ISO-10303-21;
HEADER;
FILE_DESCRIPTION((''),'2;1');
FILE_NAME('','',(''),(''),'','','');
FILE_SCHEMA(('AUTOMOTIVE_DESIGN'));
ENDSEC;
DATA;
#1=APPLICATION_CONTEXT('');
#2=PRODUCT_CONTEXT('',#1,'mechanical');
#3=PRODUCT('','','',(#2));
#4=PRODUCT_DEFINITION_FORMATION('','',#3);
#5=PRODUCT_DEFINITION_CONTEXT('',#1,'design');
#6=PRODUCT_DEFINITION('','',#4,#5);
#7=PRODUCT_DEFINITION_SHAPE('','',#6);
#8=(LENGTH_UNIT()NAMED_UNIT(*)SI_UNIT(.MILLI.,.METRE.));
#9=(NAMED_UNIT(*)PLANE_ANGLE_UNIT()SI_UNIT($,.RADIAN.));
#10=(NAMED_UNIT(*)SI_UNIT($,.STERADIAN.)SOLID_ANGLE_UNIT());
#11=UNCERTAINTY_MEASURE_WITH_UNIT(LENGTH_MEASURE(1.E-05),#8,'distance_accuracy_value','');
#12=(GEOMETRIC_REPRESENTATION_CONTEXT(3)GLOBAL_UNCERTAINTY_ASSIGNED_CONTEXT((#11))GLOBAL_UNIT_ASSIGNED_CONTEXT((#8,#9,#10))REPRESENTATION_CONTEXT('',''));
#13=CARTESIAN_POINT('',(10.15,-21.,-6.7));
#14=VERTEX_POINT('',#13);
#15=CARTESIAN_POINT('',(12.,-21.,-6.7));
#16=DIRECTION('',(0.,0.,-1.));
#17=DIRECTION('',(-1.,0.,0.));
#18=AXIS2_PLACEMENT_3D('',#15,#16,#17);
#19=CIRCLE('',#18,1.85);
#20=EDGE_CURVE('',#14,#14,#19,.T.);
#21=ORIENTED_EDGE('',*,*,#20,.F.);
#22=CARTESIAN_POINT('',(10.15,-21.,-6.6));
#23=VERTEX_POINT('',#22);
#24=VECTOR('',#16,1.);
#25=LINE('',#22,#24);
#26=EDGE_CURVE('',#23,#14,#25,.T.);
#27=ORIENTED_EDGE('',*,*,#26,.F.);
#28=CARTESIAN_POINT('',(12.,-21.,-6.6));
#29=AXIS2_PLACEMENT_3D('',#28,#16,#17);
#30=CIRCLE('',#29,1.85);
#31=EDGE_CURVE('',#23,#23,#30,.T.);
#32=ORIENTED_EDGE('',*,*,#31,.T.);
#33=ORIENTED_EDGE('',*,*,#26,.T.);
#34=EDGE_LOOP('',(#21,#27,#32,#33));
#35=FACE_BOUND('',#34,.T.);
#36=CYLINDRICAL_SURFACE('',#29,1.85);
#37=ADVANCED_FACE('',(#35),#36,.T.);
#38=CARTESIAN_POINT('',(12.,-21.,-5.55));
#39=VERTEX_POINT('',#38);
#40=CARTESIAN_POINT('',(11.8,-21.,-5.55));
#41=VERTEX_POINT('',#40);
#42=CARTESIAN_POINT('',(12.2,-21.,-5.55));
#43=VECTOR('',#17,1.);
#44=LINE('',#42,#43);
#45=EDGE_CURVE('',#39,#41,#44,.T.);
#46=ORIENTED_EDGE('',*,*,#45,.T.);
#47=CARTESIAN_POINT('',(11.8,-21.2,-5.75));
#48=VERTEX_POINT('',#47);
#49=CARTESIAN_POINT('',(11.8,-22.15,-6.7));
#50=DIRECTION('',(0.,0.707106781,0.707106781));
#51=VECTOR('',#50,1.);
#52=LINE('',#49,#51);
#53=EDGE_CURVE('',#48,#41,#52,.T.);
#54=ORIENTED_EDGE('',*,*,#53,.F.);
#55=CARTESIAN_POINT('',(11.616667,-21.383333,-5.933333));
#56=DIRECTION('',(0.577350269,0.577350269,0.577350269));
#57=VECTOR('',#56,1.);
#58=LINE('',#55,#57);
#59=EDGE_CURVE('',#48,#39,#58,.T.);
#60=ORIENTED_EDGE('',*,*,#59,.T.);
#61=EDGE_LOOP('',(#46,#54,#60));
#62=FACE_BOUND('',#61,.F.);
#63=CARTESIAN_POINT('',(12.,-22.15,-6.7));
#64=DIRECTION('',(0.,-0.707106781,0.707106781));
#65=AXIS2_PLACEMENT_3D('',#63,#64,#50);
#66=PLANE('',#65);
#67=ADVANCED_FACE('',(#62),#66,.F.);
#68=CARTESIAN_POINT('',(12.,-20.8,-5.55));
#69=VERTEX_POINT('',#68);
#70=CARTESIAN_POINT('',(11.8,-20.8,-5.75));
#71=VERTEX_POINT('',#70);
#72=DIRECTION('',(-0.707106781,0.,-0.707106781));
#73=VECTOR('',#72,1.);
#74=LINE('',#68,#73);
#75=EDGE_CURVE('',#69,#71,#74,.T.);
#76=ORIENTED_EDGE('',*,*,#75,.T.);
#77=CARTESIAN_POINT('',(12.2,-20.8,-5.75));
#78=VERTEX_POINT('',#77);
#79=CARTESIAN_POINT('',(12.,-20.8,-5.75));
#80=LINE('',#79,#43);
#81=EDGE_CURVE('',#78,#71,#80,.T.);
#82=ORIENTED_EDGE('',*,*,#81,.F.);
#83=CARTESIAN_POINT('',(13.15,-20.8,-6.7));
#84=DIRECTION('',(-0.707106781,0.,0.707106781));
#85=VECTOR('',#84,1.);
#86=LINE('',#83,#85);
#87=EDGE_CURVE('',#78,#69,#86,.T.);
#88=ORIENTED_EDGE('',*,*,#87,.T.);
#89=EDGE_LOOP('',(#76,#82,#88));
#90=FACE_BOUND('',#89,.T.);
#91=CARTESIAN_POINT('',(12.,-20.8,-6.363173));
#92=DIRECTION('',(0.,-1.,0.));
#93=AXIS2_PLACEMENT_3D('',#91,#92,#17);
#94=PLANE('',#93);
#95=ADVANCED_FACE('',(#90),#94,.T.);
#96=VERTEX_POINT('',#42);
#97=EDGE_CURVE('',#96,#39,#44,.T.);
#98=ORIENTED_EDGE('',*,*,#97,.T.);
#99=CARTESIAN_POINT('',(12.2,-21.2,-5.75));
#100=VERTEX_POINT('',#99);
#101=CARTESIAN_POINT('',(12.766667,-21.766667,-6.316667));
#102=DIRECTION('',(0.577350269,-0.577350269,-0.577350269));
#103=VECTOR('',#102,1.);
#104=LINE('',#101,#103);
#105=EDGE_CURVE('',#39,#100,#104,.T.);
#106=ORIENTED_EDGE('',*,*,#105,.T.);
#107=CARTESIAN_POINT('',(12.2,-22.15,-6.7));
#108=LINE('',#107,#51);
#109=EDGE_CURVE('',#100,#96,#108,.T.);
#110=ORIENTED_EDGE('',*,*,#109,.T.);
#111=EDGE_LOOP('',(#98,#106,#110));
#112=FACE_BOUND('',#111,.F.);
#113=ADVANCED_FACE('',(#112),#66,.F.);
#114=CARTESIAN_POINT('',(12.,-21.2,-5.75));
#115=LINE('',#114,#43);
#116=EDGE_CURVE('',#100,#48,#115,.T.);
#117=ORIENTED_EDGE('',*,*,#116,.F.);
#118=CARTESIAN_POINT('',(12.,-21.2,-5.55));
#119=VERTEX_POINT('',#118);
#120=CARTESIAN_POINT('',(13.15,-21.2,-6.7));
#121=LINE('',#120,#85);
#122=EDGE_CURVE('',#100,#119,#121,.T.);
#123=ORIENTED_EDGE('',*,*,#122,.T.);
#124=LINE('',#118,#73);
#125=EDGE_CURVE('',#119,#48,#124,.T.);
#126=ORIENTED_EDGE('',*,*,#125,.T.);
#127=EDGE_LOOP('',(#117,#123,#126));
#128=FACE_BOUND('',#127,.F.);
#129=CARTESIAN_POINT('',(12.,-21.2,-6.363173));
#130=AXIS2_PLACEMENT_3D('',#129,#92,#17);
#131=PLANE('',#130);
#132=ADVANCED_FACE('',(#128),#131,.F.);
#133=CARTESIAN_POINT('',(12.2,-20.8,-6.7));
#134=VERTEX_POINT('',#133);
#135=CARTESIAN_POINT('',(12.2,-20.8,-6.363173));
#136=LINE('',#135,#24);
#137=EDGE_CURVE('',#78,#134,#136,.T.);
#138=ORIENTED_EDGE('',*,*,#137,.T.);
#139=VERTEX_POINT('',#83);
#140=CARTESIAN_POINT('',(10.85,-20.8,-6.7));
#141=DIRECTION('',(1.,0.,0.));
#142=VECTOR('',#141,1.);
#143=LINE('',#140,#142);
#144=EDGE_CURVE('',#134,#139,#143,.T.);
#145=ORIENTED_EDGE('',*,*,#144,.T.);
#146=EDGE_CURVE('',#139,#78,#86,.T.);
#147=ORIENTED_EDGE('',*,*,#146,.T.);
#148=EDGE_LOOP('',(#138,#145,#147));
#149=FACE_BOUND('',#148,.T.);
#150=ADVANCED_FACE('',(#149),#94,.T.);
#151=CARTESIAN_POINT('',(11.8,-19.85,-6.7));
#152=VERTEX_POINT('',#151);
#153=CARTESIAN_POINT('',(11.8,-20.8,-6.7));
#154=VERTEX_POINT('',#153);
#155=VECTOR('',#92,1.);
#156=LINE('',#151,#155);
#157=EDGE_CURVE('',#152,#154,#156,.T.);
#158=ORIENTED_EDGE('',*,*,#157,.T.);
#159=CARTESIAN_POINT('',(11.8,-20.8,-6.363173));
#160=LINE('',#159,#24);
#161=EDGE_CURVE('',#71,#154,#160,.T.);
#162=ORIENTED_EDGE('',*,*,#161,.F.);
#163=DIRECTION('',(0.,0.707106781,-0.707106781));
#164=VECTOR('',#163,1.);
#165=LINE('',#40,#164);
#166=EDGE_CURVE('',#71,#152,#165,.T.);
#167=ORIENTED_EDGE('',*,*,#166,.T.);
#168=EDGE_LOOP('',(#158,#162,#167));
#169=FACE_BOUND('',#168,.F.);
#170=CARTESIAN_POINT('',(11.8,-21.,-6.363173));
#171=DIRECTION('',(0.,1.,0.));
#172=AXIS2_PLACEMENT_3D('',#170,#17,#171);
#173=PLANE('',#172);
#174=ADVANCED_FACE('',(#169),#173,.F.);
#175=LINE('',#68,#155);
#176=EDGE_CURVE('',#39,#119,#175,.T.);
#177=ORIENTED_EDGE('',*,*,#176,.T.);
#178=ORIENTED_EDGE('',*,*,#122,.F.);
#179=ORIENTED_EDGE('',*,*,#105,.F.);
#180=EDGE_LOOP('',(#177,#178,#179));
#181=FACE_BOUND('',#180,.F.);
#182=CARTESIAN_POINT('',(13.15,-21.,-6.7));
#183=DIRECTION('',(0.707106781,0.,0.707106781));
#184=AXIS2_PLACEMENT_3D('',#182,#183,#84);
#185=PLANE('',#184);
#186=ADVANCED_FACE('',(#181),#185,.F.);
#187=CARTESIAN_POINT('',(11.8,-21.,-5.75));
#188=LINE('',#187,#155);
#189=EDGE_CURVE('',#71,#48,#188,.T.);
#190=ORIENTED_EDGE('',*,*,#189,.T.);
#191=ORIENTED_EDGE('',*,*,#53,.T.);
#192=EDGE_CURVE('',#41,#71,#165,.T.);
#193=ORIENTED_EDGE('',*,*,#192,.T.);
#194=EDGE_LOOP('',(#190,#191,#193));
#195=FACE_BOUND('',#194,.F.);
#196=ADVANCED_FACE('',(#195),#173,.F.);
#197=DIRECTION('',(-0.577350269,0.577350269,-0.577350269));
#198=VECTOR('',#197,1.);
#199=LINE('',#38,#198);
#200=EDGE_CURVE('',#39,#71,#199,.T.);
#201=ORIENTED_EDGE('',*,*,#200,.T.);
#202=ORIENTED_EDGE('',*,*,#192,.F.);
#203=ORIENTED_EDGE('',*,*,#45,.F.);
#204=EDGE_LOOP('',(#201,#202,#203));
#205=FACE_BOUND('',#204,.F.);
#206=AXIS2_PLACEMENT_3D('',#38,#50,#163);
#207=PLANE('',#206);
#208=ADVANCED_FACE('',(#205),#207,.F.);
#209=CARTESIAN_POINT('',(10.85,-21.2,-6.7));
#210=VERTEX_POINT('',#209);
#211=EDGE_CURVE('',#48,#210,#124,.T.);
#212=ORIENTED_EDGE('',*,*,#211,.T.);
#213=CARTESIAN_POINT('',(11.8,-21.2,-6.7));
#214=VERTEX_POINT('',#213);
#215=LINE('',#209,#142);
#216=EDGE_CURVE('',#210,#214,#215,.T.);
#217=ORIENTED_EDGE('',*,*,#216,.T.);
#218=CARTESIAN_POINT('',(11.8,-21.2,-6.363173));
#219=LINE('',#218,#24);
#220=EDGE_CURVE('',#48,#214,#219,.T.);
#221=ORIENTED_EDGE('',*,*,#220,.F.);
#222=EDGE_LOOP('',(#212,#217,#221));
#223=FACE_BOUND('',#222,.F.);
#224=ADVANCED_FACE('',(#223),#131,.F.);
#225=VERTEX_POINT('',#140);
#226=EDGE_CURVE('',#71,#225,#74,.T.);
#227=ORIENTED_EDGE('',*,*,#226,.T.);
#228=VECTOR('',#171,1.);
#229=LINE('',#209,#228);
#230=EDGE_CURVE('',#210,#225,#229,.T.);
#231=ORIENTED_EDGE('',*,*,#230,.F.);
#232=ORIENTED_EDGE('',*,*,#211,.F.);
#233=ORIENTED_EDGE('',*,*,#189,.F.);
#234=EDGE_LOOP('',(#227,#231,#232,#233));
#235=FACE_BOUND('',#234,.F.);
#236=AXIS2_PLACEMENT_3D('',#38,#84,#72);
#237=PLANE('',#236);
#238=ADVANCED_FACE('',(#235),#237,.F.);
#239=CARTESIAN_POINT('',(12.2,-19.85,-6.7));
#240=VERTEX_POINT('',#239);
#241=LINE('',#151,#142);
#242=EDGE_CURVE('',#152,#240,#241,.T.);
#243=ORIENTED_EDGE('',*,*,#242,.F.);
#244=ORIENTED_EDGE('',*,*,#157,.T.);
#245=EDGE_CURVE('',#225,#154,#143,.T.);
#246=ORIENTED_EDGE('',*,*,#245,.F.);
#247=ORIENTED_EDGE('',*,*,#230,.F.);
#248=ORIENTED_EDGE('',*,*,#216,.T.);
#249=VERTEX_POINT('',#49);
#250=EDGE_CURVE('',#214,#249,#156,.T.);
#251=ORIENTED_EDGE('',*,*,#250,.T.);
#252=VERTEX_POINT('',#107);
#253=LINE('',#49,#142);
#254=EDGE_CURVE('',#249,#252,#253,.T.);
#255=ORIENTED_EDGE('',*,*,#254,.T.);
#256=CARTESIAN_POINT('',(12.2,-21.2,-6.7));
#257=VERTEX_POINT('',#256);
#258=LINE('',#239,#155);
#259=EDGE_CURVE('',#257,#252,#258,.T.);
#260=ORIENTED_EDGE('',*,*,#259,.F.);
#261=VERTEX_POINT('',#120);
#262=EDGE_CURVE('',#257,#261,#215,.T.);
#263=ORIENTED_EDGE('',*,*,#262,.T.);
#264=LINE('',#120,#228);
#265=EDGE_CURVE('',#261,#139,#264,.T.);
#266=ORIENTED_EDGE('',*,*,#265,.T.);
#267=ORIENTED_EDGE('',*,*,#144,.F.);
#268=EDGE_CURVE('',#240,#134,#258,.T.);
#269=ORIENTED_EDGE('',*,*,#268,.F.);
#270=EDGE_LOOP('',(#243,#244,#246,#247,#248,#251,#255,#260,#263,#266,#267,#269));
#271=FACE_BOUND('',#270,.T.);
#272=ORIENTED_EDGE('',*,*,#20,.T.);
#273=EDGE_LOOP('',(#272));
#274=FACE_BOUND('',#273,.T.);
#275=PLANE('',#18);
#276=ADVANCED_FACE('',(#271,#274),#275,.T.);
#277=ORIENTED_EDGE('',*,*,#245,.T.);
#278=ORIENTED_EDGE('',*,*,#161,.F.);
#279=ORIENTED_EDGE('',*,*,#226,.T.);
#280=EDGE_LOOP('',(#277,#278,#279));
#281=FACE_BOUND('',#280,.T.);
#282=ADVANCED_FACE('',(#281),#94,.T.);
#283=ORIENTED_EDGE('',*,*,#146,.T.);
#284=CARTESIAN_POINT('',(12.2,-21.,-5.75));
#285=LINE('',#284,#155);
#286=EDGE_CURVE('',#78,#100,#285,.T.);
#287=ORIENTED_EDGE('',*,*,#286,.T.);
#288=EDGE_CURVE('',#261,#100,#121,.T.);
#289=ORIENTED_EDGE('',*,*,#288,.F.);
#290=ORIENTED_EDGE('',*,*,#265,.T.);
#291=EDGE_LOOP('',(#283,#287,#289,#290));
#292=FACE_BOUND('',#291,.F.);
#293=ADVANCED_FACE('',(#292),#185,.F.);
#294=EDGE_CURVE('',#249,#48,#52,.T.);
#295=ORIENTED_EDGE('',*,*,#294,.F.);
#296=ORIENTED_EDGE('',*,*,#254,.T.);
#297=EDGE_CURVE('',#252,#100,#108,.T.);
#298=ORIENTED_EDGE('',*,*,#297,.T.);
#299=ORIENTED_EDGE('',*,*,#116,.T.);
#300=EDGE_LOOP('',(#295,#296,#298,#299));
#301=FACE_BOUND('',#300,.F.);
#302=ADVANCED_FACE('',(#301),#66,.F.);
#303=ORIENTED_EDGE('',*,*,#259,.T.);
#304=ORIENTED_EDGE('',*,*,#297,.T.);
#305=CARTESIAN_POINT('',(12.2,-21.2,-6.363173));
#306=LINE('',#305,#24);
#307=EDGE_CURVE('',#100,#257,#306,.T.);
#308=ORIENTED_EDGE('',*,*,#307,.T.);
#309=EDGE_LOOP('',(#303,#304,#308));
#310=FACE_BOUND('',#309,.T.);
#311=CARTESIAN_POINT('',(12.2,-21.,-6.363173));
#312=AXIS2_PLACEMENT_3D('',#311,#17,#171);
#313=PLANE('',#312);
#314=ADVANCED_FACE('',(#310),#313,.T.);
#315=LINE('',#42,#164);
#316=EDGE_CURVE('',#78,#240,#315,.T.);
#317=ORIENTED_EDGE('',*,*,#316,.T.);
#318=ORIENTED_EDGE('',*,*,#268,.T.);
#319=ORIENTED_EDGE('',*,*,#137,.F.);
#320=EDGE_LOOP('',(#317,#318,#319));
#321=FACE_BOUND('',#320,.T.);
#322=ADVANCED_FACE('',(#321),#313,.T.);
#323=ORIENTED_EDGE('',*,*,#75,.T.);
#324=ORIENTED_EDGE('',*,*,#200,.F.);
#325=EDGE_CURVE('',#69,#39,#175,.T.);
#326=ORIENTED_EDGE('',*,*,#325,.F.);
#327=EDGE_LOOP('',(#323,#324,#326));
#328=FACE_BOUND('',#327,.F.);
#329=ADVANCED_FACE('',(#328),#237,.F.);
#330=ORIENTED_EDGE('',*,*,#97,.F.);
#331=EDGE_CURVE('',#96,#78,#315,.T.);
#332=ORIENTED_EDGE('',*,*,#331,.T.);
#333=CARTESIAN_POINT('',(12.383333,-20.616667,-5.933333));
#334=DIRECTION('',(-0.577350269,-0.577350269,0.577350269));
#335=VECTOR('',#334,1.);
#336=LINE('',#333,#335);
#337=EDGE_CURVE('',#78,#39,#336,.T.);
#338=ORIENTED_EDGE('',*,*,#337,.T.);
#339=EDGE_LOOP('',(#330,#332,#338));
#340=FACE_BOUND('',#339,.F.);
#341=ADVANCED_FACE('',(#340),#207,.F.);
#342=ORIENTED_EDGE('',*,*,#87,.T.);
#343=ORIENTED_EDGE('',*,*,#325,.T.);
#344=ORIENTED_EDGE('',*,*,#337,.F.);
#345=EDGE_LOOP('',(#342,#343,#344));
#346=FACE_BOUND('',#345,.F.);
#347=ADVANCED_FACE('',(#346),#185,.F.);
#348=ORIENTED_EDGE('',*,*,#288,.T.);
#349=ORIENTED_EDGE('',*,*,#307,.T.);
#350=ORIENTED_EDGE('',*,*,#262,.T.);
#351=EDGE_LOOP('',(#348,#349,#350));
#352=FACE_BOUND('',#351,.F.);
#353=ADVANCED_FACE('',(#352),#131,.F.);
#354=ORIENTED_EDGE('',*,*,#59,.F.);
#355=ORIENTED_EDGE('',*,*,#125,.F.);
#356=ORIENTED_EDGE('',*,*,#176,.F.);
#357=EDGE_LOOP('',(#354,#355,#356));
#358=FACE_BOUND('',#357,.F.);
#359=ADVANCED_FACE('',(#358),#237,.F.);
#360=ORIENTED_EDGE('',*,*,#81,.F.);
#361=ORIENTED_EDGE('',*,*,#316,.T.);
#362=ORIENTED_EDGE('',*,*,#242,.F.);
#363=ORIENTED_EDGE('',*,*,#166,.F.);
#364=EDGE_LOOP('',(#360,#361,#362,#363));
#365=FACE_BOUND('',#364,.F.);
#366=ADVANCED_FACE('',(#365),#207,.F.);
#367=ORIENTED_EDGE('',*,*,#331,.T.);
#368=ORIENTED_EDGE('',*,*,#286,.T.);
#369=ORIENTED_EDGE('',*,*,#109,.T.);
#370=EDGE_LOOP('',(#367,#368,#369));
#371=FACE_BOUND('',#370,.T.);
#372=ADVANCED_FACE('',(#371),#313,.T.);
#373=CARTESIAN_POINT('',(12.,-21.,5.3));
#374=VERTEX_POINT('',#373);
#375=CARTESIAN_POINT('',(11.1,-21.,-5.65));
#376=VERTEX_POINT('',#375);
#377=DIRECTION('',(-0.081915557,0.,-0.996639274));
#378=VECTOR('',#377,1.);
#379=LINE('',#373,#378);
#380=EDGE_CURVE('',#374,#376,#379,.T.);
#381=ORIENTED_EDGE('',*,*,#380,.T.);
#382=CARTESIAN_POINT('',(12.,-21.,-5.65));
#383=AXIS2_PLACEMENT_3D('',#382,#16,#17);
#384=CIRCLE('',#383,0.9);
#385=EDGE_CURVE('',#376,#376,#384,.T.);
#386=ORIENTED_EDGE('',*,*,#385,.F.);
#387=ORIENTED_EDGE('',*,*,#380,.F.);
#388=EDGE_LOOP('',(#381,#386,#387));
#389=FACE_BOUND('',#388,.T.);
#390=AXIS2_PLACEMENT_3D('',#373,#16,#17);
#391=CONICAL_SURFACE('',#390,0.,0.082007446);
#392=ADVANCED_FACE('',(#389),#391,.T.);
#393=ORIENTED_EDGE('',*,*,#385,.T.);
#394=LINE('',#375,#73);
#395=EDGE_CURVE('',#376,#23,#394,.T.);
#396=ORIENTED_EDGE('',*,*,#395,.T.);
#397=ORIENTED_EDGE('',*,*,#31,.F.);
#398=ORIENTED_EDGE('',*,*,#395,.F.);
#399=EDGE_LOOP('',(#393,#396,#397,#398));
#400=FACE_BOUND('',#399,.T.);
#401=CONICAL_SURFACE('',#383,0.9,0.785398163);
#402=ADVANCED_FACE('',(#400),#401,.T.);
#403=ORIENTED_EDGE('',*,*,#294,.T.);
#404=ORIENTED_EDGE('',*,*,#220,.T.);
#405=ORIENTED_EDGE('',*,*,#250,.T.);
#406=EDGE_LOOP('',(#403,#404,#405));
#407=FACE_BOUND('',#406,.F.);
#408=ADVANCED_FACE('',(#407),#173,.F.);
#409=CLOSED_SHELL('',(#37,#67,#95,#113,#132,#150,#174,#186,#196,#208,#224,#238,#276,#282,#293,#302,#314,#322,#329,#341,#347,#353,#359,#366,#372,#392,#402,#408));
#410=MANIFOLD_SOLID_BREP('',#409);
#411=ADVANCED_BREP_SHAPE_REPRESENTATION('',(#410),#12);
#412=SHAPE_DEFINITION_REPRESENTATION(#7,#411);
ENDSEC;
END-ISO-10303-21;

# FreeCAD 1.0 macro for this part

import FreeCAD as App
import Part
import Sketcher
from FreeCAD import Vector
Q = App.Units.Quantity

doc = App.newDocument("Part")
body = doc.addObject("PartDesign::Body", "Body")

sketch1 = body.newObject("Sketcher::SketchObject", "Sketch")
sketch1.AttachmentSupport = (doc.getObject("XZ_Plane"), [""])
sketch1.MapMode = "FlatFace"
sketch1.addGeometry([
    Part.LineSegment(Vector(0, 0, 0), Vector(0, -12, 0)),
    Part.LineSegment(Vector(0, -12, 0), Vector(0.9, -1.05, 0)),
    Part.LineSegment(Vector(0.9, -1.05, 0), Vector(1.85, -0.1, 0)),
    Part.LineSegment(Vector(1.85, -0.1, 0), Vector(1.85, 0, 0)),
    Part.LineSegment(Vector(1.85, 0, 0), Vector(0, 0, 0)),
], False)
sketch1.addConstraint([
    Sketcher.Constraint("Coincident", 0, 2, 1, 1),
    Sketcher.Constraint("Coincident", 1, 2, 2, 1),
    Sketcher.Constraint("Coincident", 2, 2, 3, 1),
    Sketcher.Constraint("Coincident", 3, 2, 4, 1),
    Sketcher.Constraint("Coincident", 4, 2, 0, 1),
    Sketcher.Constraint("Vertical", 0),
    Sketcher.Constraint("Vertical", 3),
    Sketcher.Constraint("Horizontal", 4),
    Sketcher.Constraint("Coincident", 4, 2, -1, 1),
    Sketcher.Constraint("DistanceY", 0, 2, 0, 1, Q("12 mm")),
    Sketcher.Constraint("Angle", 2, Q("45 deg")),
    Sketcher.Constraint("DistanceY", 3, 1, 3, 2, Q("0.1 mm")),
    Sketcher.Constraint("DistanceX", 4, 2, 4, 1, Q("1.85 mm")),
    Sketcher.Constraint("DistanceX", -1, 1, 1, 2, Q("0.9 mm")),
])
revolution = body.newObject("PartDesign::Revolution", "Revolution")
revolution.Profile = sketch1
revolution.ReferenceAxis = (sketch1, ["V_Axis"])
revolution.Angle = 360

sketch2 = body.newObject("Sketcher::SketchObject", "Sketch001")
sketch2.AttachmentSupport = (doc.getObject("XZ_Plane"), [""])
sketch2.MapMode = "FlatFace"
sketch2.addGeometry([
    Part.LineSegment(Vector(-1.1, 0, 0), Vector(0, -1.1, 0)),
    Part.LineSegment(Vector(0, -1.1, 0), Vector(1.1, 0, 0)),
    Part.LineSegment(Vector(1.1, 0, 0), Vector(-1.1, 0, 0)),
], False)
sketch2.addConstraint([
    Sketcher.Constraint("Coincident", 0, 2, 1, 1),
    Sketcher.Constraint("Coincident", 1, 2, 2, 1),
    Sketcher.Constraint("Coincident", 2, 2, 0, 1),
    Sketcher.Constraint("Horizontal", 2),
    Sketcher.Constraint("Symmetric", 1, 2, 2, 2, -1, 1),
    Sketcher.Constraint("PointOnObject", 0, 2, -2),
    Sketcher.Constraint("Perpendicular", 0, 1),
    Sketcher.Constraint("DistanceX", 2, 2, 2, 1, Q("2.3 mm")),
])
pocket1 = body.newObject("PartDesign::Pocket", "Pocket")
pocket1.Profile = sketch2
pocket1.Length = 0.4
pocket1.Midplane = True
doc.recompute()

polarpattern = body.newObject("PartDesign::PolarPattern", "PolarPattern")
polarpattern.Originals = [pocket1]
polarpattern.Axis = (doc.getObject("Z_Axis"), [""])
polarpattern.Angle = 90
polarpattern.Occurrences = 2
body.Tip = polarpattern
body2 = doc.addObject("PartDesign::Body", "Body001")
doc.recompute()

body.Placement = App.Placement(Vector(12, -21, -6.7), App.Rotation(Vector(0, 1, 0), 180))
boolean = body2.newObject("PartDesign::Boolean", "Boolean")
boolean.Type = "Fuse"
boolean.addObjects([body])

doc.recompute()
